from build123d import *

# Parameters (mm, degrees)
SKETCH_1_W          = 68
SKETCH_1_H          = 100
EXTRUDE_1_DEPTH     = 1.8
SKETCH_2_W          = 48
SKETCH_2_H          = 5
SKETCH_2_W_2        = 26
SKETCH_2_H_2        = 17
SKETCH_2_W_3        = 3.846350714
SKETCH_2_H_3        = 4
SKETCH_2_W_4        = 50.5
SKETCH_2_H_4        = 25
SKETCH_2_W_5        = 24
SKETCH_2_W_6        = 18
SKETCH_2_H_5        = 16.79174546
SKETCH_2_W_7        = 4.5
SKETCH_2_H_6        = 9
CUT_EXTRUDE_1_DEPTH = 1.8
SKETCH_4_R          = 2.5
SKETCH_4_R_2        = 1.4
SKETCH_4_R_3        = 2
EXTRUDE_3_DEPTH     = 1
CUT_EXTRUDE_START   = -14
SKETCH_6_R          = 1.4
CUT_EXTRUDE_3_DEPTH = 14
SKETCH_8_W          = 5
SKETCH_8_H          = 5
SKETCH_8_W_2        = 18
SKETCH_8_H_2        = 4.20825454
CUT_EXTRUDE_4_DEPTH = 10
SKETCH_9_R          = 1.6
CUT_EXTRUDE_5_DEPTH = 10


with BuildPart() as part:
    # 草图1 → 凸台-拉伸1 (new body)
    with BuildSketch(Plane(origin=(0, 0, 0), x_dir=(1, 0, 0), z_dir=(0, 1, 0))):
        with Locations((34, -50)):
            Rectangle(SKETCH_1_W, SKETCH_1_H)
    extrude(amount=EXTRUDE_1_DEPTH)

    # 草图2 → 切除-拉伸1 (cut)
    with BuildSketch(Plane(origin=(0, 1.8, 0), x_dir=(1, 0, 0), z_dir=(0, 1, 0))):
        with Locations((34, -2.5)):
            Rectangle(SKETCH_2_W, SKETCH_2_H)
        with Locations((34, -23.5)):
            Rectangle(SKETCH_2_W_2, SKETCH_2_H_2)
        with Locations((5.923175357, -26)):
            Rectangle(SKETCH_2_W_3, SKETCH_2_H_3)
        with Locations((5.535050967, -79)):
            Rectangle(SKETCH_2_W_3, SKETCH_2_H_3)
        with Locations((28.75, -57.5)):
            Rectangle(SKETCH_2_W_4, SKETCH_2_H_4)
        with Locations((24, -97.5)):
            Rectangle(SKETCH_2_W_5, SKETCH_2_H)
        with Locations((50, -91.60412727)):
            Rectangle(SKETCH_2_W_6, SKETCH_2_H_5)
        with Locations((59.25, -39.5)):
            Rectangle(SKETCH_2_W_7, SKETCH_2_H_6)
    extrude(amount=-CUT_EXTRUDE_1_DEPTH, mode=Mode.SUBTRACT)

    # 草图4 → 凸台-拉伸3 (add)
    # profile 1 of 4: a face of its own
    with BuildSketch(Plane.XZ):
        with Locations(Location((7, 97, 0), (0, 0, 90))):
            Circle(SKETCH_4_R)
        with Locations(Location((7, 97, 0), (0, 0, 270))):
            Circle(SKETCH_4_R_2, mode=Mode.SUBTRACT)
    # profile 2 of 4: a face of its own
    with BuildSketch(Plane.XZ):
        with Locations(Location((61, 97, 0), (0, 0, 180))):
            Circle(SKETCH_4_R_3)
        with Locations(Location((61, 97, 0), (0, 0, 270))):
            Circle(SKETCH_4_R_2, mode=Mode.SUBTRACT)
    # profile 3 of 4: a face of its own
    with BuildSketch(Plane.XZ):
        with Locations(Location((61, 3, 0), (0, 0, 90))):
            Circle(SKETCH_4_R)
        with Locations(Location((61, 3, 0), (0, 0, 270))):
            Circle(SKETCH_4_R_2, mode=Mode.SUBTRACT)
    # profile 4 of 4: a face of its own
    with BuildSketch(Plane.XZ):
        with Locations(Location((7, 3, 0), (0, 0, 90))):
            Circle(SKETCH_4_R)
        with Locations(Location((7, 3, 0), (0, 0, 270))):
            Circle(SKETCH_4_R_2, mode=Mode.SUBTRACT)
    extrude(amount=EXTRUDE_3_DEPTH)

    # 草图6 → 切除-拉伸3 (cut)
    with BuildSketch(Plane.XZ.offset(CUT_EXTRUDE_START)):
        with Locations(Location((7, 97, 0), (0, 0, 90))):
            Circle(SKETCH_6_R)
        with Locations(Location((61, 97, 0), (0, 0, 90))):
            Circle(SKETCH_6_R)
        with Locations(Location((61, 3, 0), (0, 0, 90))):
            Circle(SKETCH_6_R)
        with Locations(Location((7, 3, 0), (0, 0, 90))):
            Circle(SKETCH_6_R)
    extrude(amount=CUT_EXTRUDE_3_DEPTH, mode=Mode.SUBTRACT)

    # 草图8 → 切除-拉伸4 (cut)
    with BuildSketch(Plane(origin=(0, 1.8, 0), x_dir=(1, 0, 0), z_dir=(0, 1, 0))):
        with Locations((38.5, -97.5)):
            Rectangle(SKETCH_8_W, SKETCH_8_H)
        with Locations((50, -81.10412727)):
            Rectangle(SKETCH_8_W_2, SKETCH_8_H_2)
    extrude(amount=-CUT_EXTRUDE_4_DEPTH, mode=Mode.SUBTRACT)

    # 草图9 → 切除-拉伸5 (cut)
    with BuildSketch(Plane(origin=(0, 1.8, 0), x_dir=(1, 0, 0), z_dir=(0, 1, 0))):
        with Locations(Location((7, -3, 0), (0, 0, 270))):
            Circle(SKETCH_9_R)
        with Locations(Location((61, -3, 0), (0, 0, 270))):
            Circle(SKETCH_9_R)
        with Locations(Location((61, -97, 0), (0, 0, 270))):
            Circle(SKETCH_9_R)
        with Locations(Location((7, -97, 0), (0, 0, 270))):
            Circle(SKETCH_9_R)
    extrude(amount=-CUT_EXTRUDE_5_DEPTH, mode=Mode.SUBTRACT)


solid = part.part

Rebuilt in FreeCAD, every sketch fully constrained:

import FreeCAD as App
import Part
import Sketcher

doc = App.newDocument("Part")
body = doc.addObject("PartDesign::Body", "Body")

# Sketch on XZ plane
sketch1 = doc.addObject("Sketcher::SketchObject", "Sketch")
body.addObject(sketch1)
sketch1.AttachmentSupport = (doc.XZ_Plane, [""])
sketch1.MapMode = "FlatFace"
sketch1.addGeometry([
    Part.LineSegment(App.Vector(0, 0, 0), App.Vector(0, 100, 0)),
    Part.LineSegment(App.Vector(0, 100, 0), App.Vector(68, 100, 0)),
    Part.LineSegment(App.Vector(68, 100, 0), App.Vector(68, 0, 0)),
    Part.LineSegment(App.Vector(68, 0, 0), App.Vector(0, 0, 0)),
], False)
sketch1.addConstraint([
    Sketcher.Constraint("Coincident", 0, 2, 1, 1),
    Sketcher.Constraint("Coincident", 1, 2, 2, 1),
    Sketcher.Constraint("Coincident", 2, 2, 3, 1),
    Sketcher.Constraint("Coincident", 3, 2, 0, 1),
    Sketcher.Constraint("Vertical", 0),
    Sketcher.Constraint("Horizontal", 1),
    Sketcher.Constraint("Vertical", 2),
    Sketcher.Constraint("Horizontal", 3),
    Sketcher.Constraint("Coincident", 3, 2, -1, 1),
    Sketcher.Constraint("DistanceX", 1, 1, 1, 2, 68.0),
    Sketcher.Constraint("DistanceY", 0, 1, 0, 2, 100.0),
])
pad1 = doc.addObject("PartDesign::Pad", "Pad")
body.addObject(pad1)
pad1.Profile = sketch1
pad1.Length = 1.8
pad1.Reversed = True

# Sketch on XZ plane
sketch2 = doc.addObject("Sketcher::SketchObject", "Sketch001")
body.addObject(sketch2)
sketch2.AttachmentSupport = (doc.XZ_Plane, [""])
sketch2.MapMode = "FlatFace"
sketch2.AttachmentOffset = App.Placement(App.Vector(0, 0, -1.8), App.Rotation())
sketch2.addGeometry([
    Part.LineSegment(App.Vector(10, 0, 0), App.Vector(10, 5, 0)),  # 0
    Part.LineSegment(App.Vector(10, 5, 0), App.Vector(58, 5, 0)),  # 1
    Part.LineSegment(App.Vector(58, 5, 0), App.Vector(58, 0, 0)),  # 2
    Part.LineSegment(App.Vector(58, 0, 0), App.Vector(10, 0, 0)),  # 3
    Part.LineSegment(App.Vector(21, 15, 0), App.Vector(21, 32, 0)),  # 4
    Part.LineSegment(App.Vector(21, 32, 0), App.Vector(47, 32, 0)),  # 5
    Part.LineSegment(App.Vector(47, 32, 0), App.Vector(47, 15, 0)),  # 6
    Part.LineSegment(App.Vector(47, 15, 0), App.Vector(21, 15, 0)),  # 7
    Part.LineSegment(App.Vector(4, 24, 0), App.Vector(4, 28, 0)),  # 8
    Part.LineSegment(App.Vector(4, 28, 0), App.Vector(7.8, 28, 0)),  # 9
    Part.LineSegment(App.Vector(7.8, 28, 0), App.Vector(7.8, 24, 0)),  # 10
    Part.LineSegment(App.Vector(7.8, 24, 0), App.Vector(4, 24, 0)),  # 11
    Part.LineSegment(App.Vector(3.6, 77, 0), App.Vector(3.6, 81, 0)),  # 12
    Part.LineSegment(App.Vector(3.6, 81, 0), App.Vector(7.5, 81, 0)),  # 13
    Part.LineSegment(App.Vector(7.5, 81, 0), App.Vector(7.5, 77, 0)),  # 14
    Part.LineSegment(App.Vector(7.5, 77, 0), App.Vector(3.6, 77, 0)),  # 15
    Part.LineSegment(App.Vector(3.5, 45, 0), App.Vector(3.5, 70, 0)),  # 16
    Part.LineSegment(App.Vector(3.5, 70, 0), App.Vector(54, 70, 0)),  # 17
    Part.LineSegment(App.Vector(54, 70, 0), App.Vector(54, 45, 0)),  # 18
    Part.LineSegment(App.Vector(54, 45, 0), App.Vector(3.5, 45, 0)),  # 19
    Part.LineSegment(App.Vector(12, 95, 0), App.Vector(12, 100, 0)),  # 20
    Part.LineSegment(App.Vector(12, 100, 0), App.Vector(36, 100, 0)),  # 21
    Part.LineSegment(App.Vector(36, 100, 0), App.Vector(36, 95, 0)),  # 22
    Part.LineSegment(App.Vector(36, 95, 0), App.Vector(12, 95, 0)),  # 23
    Part.LineSegment(App.Vector(41, 83.2, 0), App.Vector(41, 100, 0)),  # 24
    Part.LineSegment(App.Vector(41, 100, 0), App.Vector(59, 100, 0)),  # 25
    Part.LineSegment(App.Vector(59, 100, 0), App.Vector(59, 83.2, 0)),  # 26
    Part.LineSegment(App.Vector(59, 83.2, 0), App.Vector(41, 83.2, 0)),  # 27
    Part.LineSegment(App.Vector(57, 35, 0), App.Vector(57, 44, 0)),  # 28
    Part.LineSegment(App.Vector(57, 44, 0), App.Vector(61.5, 44, 0)),  # 29
    Part.LineSegment(App.Vector(61.5, 44, 0), App.Vector(61.5, 35, 0)),  # 30
    Part.LineSegment(App.Vector(61.5, 35, 0), App.Vector(57, 35, 0)),  # 31
], False)
sketch2.addConstraint([
    Sketcher.Constraint("Coincident", 0, 2, 1, 1),
    Sketcher.Constraint("Coincident", 1, 2, 2, 1),
    Sketcher.Constraint("Coincident", 2, 2, 3, 1),
    Sketcher.Constraint("Coincident", 3, 2, 0, 1),
    Sketcher.Constraint("Coincident", 4, 2, 5, 1),
    Sketcher.Constraint("Coincident", 5, 2, 6, 1),
    Sketcher.Constraint("Coincident", 6, 2, 7, 1),
    Sketcher.Constraint("Coincident", 7, 2, 4, 1),
    Sketcher.Constraint("Coincident", 8, 2, 9, 1),
    Sketcher.Constraint("Coincident", 9, 2, 10, 1),
    Sketcher.Constraint("Coincident", 10, 2, 11, 1),
    Sketcher.Constraint("Coincident", 11, 2, 8, 1),
    Sketcher.Constraint("Coincident", 12, 2, 13, 1),
    Sketcher.Constraint("Coincident", 13, 2, 14, 1),
    Sketcher.Constraint("Coincident", 14, 2, 15, 1),
    Sketcher.Constraint("Coincident", 15, 2, 12, 1),
    Sketcher.Constraint("Coincident", 16, 2, 17, 1),
    Sketcher.Constraint("Coincident", 17, 2, 18, 1),
    Sketcher.Constraint("Coincident", 18, 2, 19, 1),
    Sketcher.Constraint("Coincident", 19, 2, 16, 1),
    Sketcher.Constraint("Coincident", 20, 2, 21, 1),
    Sketcher.Constraint("Coincident", 21, 2, 22, 1),
    Sketcher.Constraint("Coincident", 22, 2, 23, 1),
    Sketcher.Constraint("Coincident", 23, 2, 20, 1),
    Sketcher.Constraint("Coincident", 24, 2, 25, 1),
    Sketcher.Constraint("Coincident", 25, 2, 26, 1),
    Sketcher.Constraint("Coincident", 26, 2, 27, 1),
    Sketcher.Constraint("Coincident", 27, 2, 24, 1),
    Sketcher.Constraint("Coincident", 28, 2, 29, 1),
    Sketcher.Constraint("Coincident", 29, 2, 30, 1),
    Sketcher.Constraint("Coincident", 30, 2, 31, 1),
    Sketcher.Constraint("Coincident", 31, 2, 28, 1),
    Sketcher.Constraint("Vertical", 0),
    Sketcher.Constraint("Horizontal", 1),
    Sketcher.Constraint("Vertical", 2),
    Sketcher.Constraint("Horizontal", 3),
    Sketcher.Constraint("Vertical", 4),
    Sketcher.Constraint("Horizontal", 5),
    Sketcher.Constraint("Vertical", 6),
    Sketcher.Constraint("Horizontal", 7),
    Sketcher.Constraint("Vertical", 8),
    Sketcher.Constraint("Horizontal", 9),
    Sketcher.Constraint("Vertical", 10),
    Sketcher.Constraint("Horizontal", 11),
    Sketcher.Constraint("Vertical", 12),
    Sketcher.Constraint("Horizontal", 13),
    Sketcher.Constraint("Vertical", 14),
    Sketcher.Constraint("Horizontal", 15),
    Sketcher.Constraint("Vertical", 16),
    Sketcher.Constraint("Horizontal", 17),
    Sketcher.Constraint("Vertical", 18),
    Sketcher.Constraint("Horizontal", 19),
    Sketcher.Constraint("Vertical", 20),
    Sketcher.Constraint("Horizontal", 21),
    Sketcher.Constraint("Vertical", 22),
    Sketcher.Constraint("Horizontal", 23),
    Sketcher.Constraint("Vertical", 24),
    Sketcher.Constraint("Horizontal", 25),
    Sketcher.Constraint("Vertical", 26),
    Sketcher.Constraint("Horizontal", 27),
    Sketcher.Constraint("Vertical", 28),
    Sketcher.Constraint("Horizontal", 29),
    Sketcher.Constraint("Vertical", 30),
    Sketcher.Constraint("Horizontal", 31),
    Sketcher.Constraint("PointOnObject", 2, 2, -1),
    Sketcher.Constraint("Horizontal", 21, 2, 24, 2),
    Sketcher.Constraint("Equal", 11, 13),
    Sketcher.Constraint("Equal", 10, 12),
    Sketcher.Constraint("Equal", 2, 20),
    Sketcher.Constraint("DistanceX", 1, 1, 1, 2, 48.0),
    Sketcher.Constraint("DistanceX", 5, 1, 5, 2, 26.0),
    Sketcher.Constraint("DistanceX", 21, 1, 21, 2, 24.0),
    Sketcher.Constraint("DistanceX", 25, 1, 25, 2, 18.0),
    Sketcher.Constraint("DistanceY", 0, 1, 0, 2, 5.0),
    Sketcher.Constraint("DistanceY", 4, 1, 4, 2, 17.0),
    Sketcher.Constraint("DistanceY", 8, 1, 8, 2, 4.0),
    Sketcher.Constraint("DistanceY", 16, 1, 16, 2, 25.0),
    Sketcher.Constraint("DistanceY", 28, 1, 28, 2, 9.0),
    Sketcher.Constraint("DistanceX", 17, 1, 17, 2, 50.5),
    Sketcher.Constraint("DistanceX", 29, 1, 29, 2, 4.5),
    Sketcher.Constraint("DistanceX", -1, 1, 0, 2, 10.0),
    Sketcher.Constraint("DistanceX", -1, 1, 4, 2, 21.0),
    Sketcher.Constraint("DistanceY", -1, 1, 4, 2, 32.0),
    Sketcher.Constraint("DistanceX", -1, 1, 8, 2, 4.0),
    Sketcher.Constraint("DistanceY", -1, 1, 8, 2, 28.0),
    Sketcher.Constraint("DistanceY", -1, 1, 12, 2, 81.0),
    Sketcher.Constraint("DistanceY", -1, 1, 16, 2, 70.0),
    Sketcher.Constraint("DistanceX", -1, 1, 17, 2, 54.0),
    Sketcher.Constraint("DistanceX", -1, 1, 20, 2, 12.0),
    Sketcher.Constraint("DistanceY", -1, 1, 20, 2, 100.0),
    Sketcher.Constraint("DistanceX", -1, 1, 24, 2, 41.0),
    Sketcher.Constraint("DistanceX", -1, 1, 28, 2, 57.0),
    Sketcher.Constraint("DistanceY", -1, 1, 28, 2, 44.0),
    Sketcher.Constraint("DistanceX", 9, 1, 9, 2, 3.846351),
    Sketcher.Constraint("DistanceY", 24, 1, 24, 2, 16.791745),
    Sketcher.Constraint("DistanceX", -1, 1, 12, 2, 3.611876),
])
pocket1 = doc.addObject("PartDesign::Pocket", "Pocket")
body.addObject(pocket1)
pocket1.Profile = sketch2
pocket1.Length = 1.8
pocket1.Reversed = True

# Sketch on XZ plane
sketch3 = doc.addObject("Sketcher::SketchObject", "Sketch002")
body.addObject(sketch3)
sketch3.AttachmentSupport = (doc.XZ_Plane, [""])
sketch3.MapMode = "FlatFace"
sketch3.addGeometry([
    Part.Circle(App.Vector(7, 97, 0), App.Vector(0, 0, 1), 2.5),  # 0
    Part.Circle(App.Vector(7, 97, 0), App.Vector(0, 0, 1), 1.4),  # 1
    Part.Circle(App.Vector(61, 97, 0), App.Vector(0, 0, 1), 2),  # 2
    Part.Circle(App.Vector(61, 97, 0), App.Vector(0, 0, 1), 1.4),  # 3
    Part.Circle(App.Vector(61, 3, 0), App.Vector(0, 0, 1), 2.5),  # 4
    Part.Circle(App.Vector(61, 3, 0), App.Vector(0, 0, 1), 1.4),  # 5
    Part.Circle(App.Vector(7, 3, 0), App.Vector(0, 0, 1), 2.5),  # 6
    Part.Circle(App.Vector(7, 3, 0), App.Vector(0, 0, 1), 1.4),  # 7
], False)
sketch3.addConstraint([
    Sketcher.Constraint("Coincident", 1, 3, 0, 3),
    Sketcher.Constraint("Coincident", 3, 3, 2, 3),
    Sketcher.Constraint("Coincident", 5, 3, 4, 3),
    Sketcher.Constraint("Coincident", 7, 3, 6, 3),
    Sketcher.Constraint("Equal", 1, 3),
    Sketcher.Constraint("Equal", 0, 4),
    Sketcher.Constraint("Equal", 3, 5),
    Sketcher.Constraint("Equal", 4, 6),
    Sketcher.Constraint("Equal", 5, 7),
    Sketcher.Constraint("Horizontal", 1, 3, 2, 3),
    Sketcher.Constraint("Horizontal", 5, 3, 6, 3),
    Sketcher.Constraint("Vertical", 3, 3, 4, 3),
    Sketcher.Constraint("Vertical", 1, 3, 6, 3),
    Sketcher.Constraint("Diameter", 0, 5.0),
    Sketcher.Constraint("Diameter", 2, 4.0),
    Sketcher.Constraint("Diameter", 1, 2.8),
    Sketcher.Constraint("DistanceX", -1, 1, 0, 3, 7.0),
    Sketcher.Constraint("DistanceY", -1, 1, 0, 3, 97.0),
    Sketcher.Constraint("DistanceX", -1, 1, 2, 3, 61.0),
    Sketcher.Constraint("DistanceY", -1, 1, 4, 3, 3.0),
])
pad2 = doc.addObject("PartDesign::Pad", "Pad001")
body.addObject(pad2)
pad2.Profile = sketch3
pad2.Length = 1

# Sketch on XZ plane
sketch4 = doc.addObject("Sketcher::SketchObject", "Sketch003")
body.addObject(sketch4)
sketch4.AttachmentSupport = (doc.XZ_Plane, [""])
sketch4.MapMode = "FlatFace"
sketch4.AttachmentOffset = App.Placement(App.Vector(0, 0, -14), App.Rotation())
sketch4.addGeometry([
    Part.Circle(App.Vector(7, 97, 0), App.Vector(0, 0, 1), 1.4),
    Part.Circle(App.Vector(61, 97, 0), App.Vector(0, 0, 1), 1.4),
    Part.Circle(App.Vector(61, 3, 0), App.Vector(0, 0, 1), 1.4),
    Part.Circle(App.Vector(7, 3, 0), App.Vector(0, 0, 1), 1.4),
], False)
sketch4.addConstraint([
    Sketcher.Constraint("Equal", 0, 1),
    Sketcher.Constraint("Equal", 1, 2),
    Sketcher.Constraint("Equal", 2, 3),
    Sketcher.Constraint("Horizontal", 0, 3, 1, 3),
    Sketcher.Constraint("Horizontal", 2, 3, 3, 3),
    Sketcher.Constraint("Vertical", 1, 3, 2, 3),
    Sketcher.Constraint("Vertical", 0, 3, 3, 3),
    Sketcher.Constraint("Diameter", 0, 2.8),
    Sketcher.Constraint("DistanceX", -1, 1, 0, 3, 7.0),
    Sketcher.Constraint("DistanceY", -1, 1, 0, 3, 97.0),
    Sketcher.Constraint("DistanceX", -1, 1, 1, 3, 61.0),
    Sketcher.Constraint("DistanceY", -1, 1, 2, 3, 3.0),
])
pocket2 = doc.addObject("PartDesign::Pocket", "Pocket001")
body.addObject(pocket2)
pocket2.Profile = sketch4
pocket2.Length = 14
pocket2.Reversed = True

# Sketch on XZ plane
sketch5 = doc.addObject("Sketcher::SketchObject", "Sketch004")
body.addObject(sketch5)
sketch5.AttachmentSupport = (doc.XZ_Plane, [""])
sketch5.MapMode = "FlatFace"
sketch5.AttachmentOffset = App.Placement(App.Vector(0, 0, -1.8), App.Rotation())
sketch5.addGeometry([
    Part.LineSegment(App.Vector(36, 95, 0), App.Vector(36, 100, 0)),  # 0
    Part.LineSegment(App.Vector(36, 100, 0), App.Vector(41, 100, 0)),  # 1
    Part.LineSegment(App.Vector(41, 100, 0), App.Vector(41, 95, 0)),  # 2
    Part.LineSegment(App.Vector(41, 95, 0), App.Vector(36, 95, 0)),  # 3
    Part.LineSegment(App.Vector(41, 79, 0), App.Vector(41, 83.2, 0)),  # 4
    Part.LineSegment(App.Vector(41, 83.2, 0), App.Vector(59, 83.2, 0)),  # 5
    Part.LineSegment(App.Vector(59, 83.2, 0), App.Vector(59, 79, 0)),  # 6
    Part.LineSegment(App.Vector(59, 79, 0), App.Vector(41, 79, 0)),  # 7
], False)
sketch5.addConstraint([
    Sketcher.Constraint("Coincident", 0, 2, 1, 1),
    Sketcher.Constraint("Coincident", 1, 2, 2, 1),
    Sketcher.Constraint("Coincident", 2, 2, 3, 1),
    Sketcher.Constraint("Coincident", 3, 2, 0, 1),
    Sketcher.Constraint("Coincident", 4, 2, 5, 1),
    Sketcher.Constraint("Coincident", 5, 2, 6, 1),
    Sketcher.Constraint("Coincident", 6, 2, 7, 1),
    Sketcher.Constraint("Coincident", 7, 2, 4, 1),
    Sketcher.Constraint("Vertical", 0),
    Sketcher.Constraint("Horizontal", 1),
    Sketcher.Constraint("Vertical", 2),
    Sketcher.Constraint("Horizontal", 3),
    Sketcher.Constraint("Vertical", 4),
    Sketcher.Constraint("Horizontal", 5),
    Sketcher.Constraint("Vertical", 6),
    Sketcher.Constraint("Horizontal", 7),
    Sketcher.Constraint("Vertical", 2, 2, 4, 2),
    Sketcher.Constraint("Equal", 3, 0),
    Sketcher.Constraint("DistanceX", 1, 1, 1, 2, 5.0),
    Sketcher.Constraint("DistanceX", 5, 1, 5, 2, 18.0),
    Sketcher.Constraint("DistanceX", -1, 1, 0, 2, 36.0),
    Sketcher.Constraint("DistanceY", -1, 1, 0, 2, 100.0),
    Sketcher.Constraint("DistanceY", -1, 1, 6, 2, 79.0),
    Sketcher.Constraint("DistanceY", 4, 1, 4, 2, 4.208255),
])
pocket3 = doc.addObject("PartDesign::Pocket", "Pocket002")
body.addObject(pocket3)
pocket3.Profile = sketch5
pocket3.Length = 10
pocket3.Reversed = True

# Sketch on XZ plane
sketch6 = doc.addObject("Sketcher::SketchObject", "Sketch005")
body.addObject(sketch6)
sketch6.AttachmentSupport = (doc.XZ_Plane, [""])
sketch6.MapMode = "FlatFace"
sketch6.AttachmentOffset = App.Placement(App.Vector(0, 0, -1.8), App.Rotation())
sketch6.addGeometry([
    Part.Circle(App.Vector(7, 3, 0), App.Vector(0, 0, 1), 1.6),
    Part.Circle(App.Vector(61, 3, 0), App.Vector(0, 0, 1), 1.6),
    Part.Circle(App.Vector(61, 97, 0), App.Vector(0, 0, 1), 1.6),
    Part.Circle(App.Vector(7, 97, 0), App.Vector(0, 0, 1), 1.6),
], False)
sketch6.addConstraint([
    Sketcher.Constraint("Equal", 0, 1),
    Sketcher.Constraint("Equal", 1, 2),
    Sketcher.Constraint("Equal", 2, 3),
    Sketcher.Constraint("Horizontal", 0, 3, 1, 3),
    Sketcher.Constraint("Horizontal", 2, 3, 3, 3),
    Sketcher.Constraint("Vertical", 1, 3, 2, 3),
    Sketcher.Constraint("Vertical", 0, 3, 3, 3),
    Sketcher.Constraint("Diameter", 0, 3.2),
    Sketcher.Constraint("DistanceX", -1, 1, 0, 3, 7.0),
    Sketcher.Constraint("DistanceY", -1, 1, 0, 3, 3.0),
    Sketcher.Constraint("DistanceX", -1, 1, 1, 3, 61.0),
    Sketcher.Constraint("DistanceY", -1, 1, 2, 3, 97.0),
])
pocket4 = doc.addObject("PartDesign::Pocket", "Pocket003")
body.addObject(pocket4)
pocket4.Profile = sketch6
pocket4.Length = 10
pocket4.Reversed = True

doc.recompute()
